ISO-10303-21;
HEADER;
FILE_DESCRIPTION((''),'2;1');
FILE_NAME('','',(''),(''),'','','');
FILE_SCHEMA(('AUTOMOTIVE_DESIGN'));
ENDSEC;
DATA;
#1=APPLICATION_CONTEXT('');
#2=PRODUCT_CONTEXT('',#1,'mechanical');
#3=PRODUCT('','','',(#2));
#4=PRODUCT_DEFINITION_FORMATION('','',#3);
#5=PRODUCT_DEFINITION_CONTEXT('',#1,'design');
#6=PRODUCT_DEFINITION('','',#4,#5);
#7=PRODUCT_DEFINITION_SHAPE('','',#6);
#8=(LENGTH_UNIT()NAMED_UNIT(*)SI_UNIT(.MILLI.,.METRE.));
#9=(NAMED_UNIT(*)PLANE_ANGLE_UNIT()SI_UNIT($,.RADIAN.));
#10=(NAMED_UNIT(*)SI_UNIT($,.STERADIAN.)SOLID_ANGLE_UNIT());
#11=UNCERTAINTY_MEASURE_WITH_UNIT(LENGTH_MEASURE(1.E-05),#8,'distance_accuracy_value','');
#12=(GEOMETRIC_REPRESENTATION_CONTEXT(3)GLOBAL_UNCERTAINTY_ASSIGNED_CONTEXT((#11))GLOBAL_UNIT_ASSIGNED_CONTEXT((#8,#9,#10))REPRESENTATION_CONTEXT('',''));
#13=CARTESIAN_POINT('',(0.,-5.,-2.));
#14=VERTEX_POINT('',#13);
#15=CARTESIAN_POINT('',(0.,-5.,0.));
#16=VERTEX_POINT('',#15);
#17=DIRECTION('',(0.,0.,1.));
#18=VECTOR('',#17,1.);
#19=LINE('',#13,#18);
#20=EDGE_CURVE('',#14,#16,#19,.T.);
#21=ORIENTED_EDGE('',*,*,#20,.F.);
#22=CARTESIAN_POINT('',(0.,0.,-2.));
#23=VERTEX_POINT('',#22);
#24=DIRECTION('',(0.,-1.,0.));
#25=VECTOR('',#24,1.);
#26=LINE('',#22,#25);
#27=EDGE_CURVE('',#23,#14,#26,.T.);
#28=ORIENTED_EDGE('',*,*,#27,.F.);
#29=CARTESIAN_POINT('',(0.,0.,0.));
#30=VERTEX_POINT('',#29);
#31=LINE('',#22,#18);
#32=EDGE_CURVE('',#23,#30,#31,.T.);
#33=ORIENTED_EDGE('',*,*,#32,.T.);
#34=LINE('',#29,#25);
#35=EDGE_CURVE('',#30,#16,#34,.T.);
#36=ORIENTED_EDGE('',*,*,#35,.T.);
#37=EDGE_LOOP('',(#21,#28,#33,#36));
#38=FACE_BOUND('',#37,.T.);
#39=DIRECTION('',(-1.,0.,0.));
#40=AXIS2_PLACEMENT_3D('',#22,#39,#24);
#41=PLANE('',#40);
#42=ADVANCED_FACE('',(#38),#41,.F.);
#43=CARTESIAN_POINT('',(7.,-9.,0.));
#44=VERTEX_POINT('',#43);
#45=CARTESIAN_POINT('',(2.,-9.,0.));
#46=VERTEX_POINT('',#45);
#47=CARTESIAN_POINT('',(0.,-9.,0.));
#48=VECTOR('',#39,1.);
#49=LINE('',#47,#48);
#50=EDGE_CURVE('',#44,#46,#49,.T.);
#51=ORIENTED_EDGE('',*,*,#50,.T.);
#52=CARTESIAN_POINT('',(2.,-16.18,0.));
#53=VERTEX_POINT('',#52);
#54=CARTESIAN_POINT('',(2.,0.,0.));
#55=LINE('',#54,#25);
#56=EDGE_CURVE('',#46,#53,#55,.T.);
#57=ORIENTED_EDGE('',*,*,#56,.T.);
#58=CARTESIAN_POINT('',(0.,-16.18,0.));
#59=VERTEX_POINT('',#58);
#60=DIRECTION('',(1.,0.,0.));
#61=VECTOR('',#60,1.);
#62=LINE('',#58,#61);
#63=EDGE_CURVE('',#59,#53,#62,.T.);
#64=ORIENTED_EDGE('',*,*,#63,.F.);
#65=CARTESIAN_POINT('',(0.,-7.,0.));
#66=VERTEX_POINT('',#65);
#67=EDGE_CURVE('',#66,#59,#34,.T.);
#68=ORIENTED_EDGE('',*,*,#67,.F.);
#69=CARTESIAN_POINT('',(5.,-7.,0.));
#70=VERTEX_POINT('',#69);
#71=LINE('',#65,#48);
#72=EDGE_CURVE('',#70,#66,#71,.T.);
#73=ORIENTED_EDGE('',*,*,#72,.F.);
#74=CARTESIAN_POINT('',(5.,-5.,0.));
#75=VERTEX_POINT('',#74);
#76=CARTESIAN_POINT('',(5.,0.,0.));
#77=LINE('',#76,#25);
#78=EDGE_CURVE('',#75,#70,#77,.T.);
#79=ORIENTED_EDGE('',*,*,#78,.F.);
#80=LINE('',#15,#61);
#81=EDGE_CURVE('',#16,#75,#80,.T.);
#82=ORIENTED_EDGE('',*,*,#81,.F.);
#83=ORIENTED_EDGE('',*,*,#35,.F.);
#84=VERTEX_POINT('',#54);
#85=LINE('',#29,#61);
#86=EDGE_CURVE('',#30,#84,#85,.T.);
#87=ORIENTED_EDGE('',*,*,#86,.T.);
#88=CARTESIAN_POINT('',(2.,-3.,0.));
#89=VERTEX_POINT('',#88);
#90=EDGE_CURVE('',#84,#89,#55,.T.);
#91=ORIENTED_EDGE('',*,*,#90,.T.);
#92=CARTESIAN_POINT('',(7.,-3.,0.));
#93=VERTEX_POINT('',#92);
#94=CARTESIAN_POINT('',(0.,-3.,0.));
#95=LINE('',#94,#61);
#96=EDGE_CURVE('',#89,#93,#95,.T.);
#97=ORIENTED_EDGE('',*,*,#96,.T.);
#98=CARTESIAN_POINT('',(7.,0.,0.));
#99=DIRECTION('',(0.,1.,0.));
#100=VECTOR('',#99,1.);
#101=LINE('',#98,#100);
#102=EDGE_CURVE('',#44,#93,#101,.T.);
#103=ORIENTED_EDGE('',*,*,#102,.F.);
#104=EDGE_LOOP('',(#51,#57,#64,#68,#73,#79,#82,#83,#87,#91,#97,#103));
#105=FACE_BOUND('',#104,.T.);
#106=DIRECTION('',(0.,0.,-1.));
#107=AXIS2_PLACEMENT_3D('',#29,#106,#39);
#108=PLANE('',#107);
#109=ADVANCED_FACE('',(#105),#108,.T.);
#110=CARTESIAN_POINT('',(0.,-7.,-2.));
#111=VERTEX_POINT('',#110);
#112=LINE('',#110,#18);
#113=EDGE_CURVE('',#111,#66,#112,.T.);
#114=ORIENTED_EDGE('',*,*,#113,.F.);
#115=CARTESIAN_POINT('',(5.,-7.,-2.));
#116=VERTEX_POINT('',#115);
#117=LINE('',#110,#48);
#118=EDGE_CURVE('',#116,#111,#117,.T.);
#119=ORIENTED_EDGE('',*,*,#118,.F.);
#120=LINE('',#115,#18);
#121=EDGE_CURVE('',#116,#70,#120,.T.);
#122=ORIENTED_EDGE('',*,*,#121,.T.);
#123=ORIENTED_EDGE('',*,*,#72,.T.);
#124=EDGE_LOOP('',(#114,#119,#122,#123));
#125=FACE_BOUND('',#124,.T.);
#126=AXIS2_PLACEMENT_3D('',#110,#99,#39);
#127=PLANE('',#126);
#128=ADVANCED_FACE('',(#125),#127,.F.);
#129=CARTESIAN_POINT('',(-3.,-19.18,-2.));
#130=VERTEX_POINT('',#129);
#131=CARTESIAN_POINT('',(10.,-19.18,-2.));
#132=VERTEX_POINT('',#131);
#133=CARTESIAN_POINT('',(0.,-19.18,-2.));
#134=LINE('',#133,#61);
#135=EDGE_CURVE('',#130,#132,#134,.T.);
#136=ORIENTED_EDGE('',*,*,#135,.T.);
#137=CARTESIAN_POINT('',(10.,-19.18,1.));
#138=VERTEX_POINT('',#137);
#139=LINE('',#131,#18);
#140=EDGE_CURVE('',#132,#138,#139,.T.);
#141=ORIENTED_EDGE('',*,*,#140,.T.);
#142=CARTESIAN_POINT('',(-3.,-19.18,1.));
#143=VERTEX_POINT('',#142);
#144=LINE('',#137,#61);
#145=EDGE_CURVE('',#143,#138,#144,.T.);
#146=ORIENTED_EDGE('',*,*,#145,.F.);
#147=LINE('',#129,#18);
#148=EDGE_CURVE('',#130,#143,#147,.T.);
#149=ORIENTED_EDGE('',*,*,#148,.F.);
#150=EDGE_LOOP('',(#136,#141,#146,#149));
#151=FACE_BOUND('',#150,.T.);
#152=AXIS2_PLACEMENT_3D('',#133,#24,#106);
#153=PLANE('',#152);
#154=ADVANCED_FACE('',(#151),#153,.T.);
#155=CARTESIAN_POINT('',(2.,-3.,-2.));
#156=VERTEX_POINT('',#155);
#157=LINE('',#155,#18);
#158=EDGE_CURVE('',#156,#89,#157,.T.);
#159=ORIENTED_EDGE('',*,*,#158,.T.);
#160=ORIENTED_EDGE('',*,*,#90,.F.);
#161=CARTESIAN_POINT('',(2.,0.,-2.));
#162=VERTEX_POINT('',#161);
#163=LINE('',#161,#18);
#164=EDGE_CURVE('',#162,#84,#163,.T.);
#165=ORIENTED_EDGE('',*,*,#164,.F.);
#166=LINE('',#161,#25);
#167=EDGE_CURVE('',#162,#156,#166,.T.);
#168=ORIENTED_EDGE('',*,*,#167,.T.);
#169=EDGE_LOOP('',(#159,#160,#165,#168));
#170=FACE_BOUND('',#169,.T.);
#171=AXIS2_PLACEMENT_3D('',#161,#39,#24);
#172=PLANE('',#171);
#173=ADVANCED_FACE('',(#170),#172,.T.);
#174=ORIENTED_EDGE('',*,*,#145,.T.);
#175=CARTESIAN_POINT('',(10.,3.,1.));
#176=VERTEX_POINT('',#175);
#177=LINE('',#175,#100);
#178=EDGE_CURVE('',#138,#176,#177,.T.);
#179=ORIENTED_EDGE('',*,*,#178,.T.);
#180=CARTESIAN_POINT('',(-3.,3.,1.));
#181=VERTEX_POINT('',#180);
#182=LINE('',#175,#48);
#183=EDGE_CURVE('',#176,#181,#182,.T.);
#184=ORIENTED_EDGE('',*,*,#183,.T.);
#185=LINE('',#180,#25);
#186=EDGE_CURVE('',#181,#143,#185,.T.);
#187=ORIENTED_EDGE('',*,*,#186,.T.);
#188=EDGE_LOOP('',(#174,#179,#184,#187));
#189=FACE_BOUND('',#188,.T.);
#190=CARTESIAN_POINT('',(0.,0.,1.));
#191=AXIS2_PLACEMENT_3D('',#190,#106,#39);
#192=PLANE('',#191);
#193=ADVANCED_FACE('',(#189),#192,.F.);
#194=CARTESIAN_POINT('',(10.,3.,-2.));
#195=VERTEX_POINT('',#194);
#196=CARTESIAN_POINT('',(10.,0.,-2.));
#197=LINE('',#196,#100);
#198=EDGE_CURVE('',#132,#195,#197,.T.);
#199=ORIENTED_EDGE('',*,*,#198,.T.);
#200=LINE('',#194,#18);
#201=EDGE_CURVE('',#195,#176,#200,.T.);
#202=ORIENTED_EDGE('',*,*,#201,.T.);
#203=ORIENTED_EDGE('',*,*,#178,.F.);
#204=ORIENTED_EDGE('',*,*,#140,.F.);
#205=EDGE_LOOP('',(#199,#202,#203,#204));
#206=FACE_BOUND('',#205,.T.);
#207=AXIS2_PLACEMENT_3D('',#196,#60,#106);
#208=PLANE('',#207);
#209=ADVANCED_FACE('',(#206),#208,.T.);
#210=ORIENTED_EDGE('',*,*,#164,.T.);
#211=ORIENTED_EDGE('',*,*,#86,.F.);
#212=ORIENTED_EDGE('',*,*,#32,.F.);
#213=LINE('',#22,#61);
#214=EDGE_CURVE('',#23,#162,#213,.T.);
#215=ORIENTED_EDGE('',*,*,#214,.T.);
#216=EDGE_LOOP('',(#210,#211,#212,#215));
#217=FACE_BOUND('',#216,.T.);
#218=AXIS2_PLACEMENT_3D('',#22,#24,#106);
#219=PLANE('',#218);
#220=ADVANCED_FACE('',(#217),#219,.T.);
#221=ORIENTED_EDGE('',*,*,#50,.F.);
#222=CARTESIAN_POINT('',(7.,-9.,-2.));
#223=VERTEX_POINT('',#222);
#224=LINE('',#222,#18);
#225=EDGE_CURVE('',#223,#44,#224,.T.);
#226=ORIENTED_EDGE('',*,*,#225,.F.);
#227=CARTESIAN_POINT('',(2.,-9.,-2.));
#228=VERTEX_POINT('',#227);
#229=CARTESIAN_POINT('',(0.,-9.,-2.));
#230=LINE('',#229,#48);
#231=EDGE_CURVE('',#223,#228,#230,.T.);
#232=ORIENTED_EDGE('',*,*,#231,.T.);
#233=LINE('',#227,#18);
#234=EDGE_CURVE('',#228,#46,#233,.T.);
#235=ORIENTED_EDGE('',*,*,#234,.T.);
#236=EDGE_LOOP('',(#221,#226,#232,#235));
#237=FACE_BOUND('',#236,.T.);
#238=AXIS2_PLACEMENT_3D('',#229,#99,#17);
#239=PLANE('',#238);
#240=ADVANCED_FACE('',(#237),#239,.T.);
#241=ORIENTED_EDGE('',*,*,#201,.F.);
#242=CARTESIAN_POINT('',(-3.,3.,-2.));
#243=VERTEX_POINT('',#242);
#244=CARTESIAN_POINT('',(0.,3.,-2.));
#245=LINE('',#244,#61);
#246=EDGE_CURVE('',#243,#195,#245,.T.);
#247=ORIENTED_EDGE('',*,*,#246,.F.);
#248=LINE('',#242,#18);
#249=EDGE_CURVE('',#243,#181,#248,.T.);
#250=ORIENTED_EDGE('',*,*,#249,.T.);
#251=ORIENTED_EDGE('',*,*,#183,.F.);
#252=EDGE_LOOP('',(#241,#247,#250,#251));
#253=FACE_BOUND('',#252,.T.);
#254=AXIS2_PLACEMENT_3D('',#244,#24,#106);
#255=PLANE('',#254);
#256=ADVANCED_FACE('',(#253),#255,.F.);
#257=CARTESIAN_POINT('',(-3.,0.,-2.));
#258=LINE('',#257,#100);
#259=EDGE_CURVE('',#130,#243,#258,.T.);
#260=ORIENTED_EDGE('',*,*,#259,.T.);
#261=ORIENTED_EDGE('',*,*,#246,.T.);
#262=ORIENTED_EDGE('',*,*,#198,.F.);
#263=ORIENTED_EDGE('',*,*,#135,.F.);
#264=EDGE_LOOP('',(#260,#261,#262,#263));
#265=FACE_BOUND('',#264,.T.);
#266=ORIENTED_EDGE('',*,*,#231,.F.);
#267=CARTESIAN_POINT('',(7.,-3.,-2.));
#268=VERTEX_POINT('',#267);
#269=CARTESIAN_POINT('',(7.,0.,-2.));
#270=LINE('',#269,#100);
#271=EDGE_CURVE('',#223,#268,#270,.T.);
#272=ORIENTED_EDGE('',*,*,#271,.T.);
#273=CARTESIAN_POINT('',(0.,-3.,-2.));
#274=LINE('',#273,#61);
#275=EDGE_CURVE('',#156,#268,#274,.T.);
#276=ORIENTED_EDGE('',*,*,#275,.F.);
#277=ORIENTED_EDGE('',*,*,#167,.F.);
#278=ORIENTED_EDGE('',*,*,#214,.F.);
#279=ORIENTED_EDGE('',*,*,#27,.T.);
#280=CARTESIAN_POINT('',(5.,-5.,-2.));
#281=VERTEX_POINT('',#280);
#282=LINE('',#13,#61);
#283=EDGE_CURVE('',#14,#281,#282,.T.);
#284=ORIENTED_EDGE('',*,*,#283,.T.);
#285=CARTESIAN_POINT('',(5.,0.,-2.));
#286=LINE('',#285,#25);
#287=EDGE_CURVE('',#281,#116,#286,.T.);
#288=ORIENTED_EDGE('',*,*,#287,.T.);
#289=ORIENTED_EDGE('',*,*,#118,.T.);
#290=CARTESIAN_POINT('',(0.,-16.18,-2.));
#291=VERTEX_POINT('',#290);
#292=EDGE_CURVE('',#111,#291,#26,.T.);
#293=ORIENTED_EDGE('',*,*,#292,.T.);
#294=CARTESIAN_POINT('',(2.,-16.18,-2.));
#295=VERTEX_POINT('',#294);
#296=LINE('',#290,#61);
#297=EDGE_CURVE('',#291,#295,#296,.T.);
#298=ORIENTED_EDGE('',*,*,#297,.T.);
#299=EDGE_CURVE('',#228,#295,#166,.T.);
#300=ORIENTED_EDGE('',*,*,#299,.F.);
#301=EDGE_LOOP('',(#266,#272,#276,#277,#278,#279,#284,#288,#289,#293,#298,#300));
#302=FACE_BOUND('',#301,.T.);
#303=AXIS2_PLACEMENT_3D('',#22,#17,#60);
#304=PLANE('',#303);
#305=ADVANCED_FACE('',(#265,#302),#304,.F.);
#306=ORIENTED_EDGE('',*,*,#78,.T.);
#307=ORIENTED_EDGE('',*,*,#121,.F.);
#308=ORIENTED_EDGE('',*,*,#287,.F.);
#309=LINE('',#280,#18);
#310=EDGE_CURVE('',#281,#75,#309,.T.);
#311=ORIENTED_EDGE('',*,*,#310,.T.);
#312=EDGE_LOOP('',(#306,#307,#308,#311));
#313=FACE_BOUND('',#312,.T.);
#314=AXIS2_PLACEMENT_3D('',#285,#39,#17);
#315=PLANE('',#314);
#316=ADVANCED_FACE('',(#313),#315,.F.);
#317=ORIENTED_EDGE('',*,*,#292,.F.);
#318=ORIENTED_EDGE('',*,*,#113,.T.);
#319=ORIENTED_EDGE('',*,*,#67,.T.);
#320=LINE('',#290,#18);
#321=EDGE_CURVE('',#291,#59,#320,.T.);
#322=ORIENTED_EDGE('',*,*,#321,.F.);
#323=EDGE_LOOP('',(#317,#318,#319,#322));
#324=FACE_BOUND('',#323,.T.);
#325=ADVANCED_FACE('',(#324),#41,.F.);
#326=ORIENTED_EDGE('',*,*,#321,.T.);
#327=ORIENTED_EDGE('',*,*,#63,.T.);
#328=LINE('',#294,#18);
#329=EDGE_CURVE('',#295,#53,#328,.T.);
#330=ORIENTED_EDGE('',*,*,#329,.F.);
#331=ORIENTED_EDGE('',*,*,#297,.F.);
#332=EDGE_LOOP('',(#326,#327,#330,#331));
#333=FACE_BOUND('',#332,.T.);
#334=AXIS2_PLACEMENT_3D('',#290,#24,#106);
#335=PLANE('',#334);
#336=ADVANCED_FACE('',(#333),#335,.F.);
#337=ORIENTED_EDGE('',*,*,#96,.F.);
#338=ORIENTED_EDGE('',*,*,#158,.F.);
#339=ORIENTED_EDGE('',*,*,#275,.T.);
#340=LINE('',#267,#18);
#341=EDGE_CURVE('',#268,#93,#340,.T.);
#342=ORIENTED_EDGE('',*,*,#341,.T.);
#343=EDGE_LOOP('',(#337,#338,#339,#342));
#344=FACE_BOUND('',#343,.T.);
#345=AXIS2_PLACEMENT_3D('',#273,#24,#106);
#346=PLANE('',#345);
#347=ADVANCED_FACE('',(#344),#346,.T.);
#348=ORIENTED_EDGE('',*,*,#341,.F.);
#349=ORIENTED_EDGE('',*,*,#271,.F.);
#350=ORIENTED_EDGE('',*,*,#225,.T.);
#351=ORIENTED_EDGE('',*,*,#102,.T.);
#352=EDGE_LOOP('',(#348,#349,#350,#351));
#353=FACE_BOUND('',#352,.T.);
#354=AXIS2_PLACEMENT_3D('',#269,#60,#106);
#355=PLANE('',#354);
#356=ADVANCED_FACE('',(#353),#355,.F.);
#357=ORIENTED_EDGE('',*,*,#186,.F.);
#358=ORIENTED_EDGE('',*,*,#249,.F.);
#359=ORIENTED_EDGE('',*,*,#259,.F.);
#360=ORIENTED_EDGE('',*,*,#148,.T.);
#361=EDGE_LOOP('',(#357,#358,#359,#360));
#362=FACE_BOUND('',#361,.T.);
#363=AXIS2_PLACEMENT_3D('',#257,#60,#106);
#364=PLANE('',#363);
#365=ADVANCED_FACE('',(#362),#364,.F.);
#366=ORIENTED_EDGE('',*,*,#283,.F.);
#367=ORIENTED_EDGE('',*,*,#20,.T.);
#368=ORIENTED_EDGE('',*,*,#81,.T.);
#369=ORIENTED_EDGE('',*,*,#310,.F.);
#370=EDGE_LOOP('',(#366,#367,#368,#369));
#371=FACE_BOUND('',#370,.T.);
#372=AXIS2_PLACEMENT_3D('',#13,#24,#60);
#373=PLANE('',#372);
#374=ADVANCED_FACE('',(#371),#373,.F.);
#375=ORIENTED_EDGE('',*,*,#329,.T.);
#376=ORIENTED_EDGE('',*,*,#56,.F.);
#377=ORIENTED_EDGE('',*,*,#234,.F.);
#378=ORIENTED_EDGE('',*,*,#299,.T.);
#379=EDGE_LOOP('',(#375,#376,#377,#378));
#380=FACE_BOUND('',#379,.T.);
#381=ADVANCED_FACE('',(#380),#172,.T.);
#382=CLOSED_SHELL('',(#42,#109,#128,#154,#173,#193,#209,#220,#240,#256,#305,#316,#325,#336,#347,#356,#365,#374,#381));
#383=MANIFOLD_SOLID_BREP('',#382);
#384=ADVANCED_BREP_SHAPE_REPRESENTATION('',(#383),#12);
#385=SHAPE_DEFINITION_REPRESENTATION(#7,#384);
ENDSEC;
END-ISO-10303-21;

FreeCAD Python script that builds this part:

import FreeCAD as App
import Part
import Sketcher

V = App.Vector


def add_polygon(sketch, points):
    """Adds a closed chain of lines whose ends are joined by coincident constraints."""
    first, n = sketch.GeometryCount, len(points)
    for a, b in zip(points, points[1:] + points[:1]):
        sketch.addGeometry(Part.LineSegment(App.Vector(*a, 0), App.Vector(*b, 0)), False)
    for i in range(n):
        sketch.addConstraint(Sketcher.Constraint("Coincident", first + i, 2, first + (i + 1) % n, 1))

doc = App.newDocument("Part")
params = doc.addObject("Spreadsheet::Sheet", "Params")
for row, (alias, value) in enumerate([
    ("sketch1_width", "13 mm"),
    ("sketch1_width2", "5 mm"),
    ("sketch1_width3", "2 mm"),
    ("sketch1_height", "3 mm"),
    ("sketch1_height2", "6 mm"),
    ("pad1_length", "2 mm"),
    ("sketch2_width", "13 mm"),
    ("sketch2_height", "22.18 mm"),
    ("pad2_length", "1 mm"),
], start=1):
    params.set(f"A{row}", alias)
    params.set(f"B{row}", "=" + value)
    params.setAlias(f"B{row}", alias)

body = doc.addObject("PartDesign::Body", "Body")

sketch1 = body.newObject("Sketcher::SketchObject", "Sketch")
sketch1.AttachmentSupport = (doc.getObject("XY_Plane"), [""])
sketch1.MapMode = "FlatFace"
add_polygon(sketch1, [(-3, 3), (-3, -19.2), (10, -19.2), (10, 3)])
add_polygon(sketch1, [(5, -5), (0, -5), (0, 0), (2, 0), (2, -3), (7, -3), (7, -9), (2, -9), (2, -16.2), (0, -16.2), (0, -7), (5, -7)])
sketch1.addConstraint(Sketcher.Constraint("Vertical", 0))
sketch1.addConstraint(Sketcher.Constraint("Horizontal", 1))
sketch1.addConstraint(Sketcher.Constraint("Vertical", 2))
sketch1.addConstraint(Sketcher.Constraint("Horizontal", 3))
sketch1.addConstraint(Sketcher.Constraint("Horizontal", 4))
sketch1.addConstraint(Sketcher.Constraint("Vertical", 5))
sketch1.addConstraint(Sketcher.Constraint("Horizontal", 6))
sketch1.addConstraint(Sketcher.Constraint("Vertical", 7))
sketch1.addConstraint(Sketcher.Constraint("Horizontal", 8))
sketch1.addConstraint(Sketcher.Constraint("Vertical", 9))
sketch1.addConstraint(Sketcher.Constraint("Horizontal", 10))
sketch1.addConstraint(Sketcher.Constraint("Vertical", 11))
sketch1.addConstraint(Sketcher.Constraint("Horizontal", 12))
sketch1.addConstraint(Sketcher.Constraint("Vertical", 13))
sketch1.addConstraint(Sketcher.Constraint("Horizontal", 14))
sketch1.addConstraint(Sketcher.Constraint("Vertical", 15))
sketch1.addConstraint(Sketcher.Constraint("Coincident", 5, 2, -1, 1))
sketch1.addConstraint(Sketcher.Constraint("PointOnObject", 12, 2, -2))
sketch1.addConstraint(Sketcher.Constraint("Vertical", 7, 2, 10, 2))
sketch1.addConstraint(Sketcher.Constraint("Equal", 4, 8))
sketch1.addConstraint(Sketcher.Constraint("Equal", 14, 5))
sketch1.addConstraint(Sketcher.Constraint("Equal", 12, 15))
sketch1.addConstraint(Sketcher.Constraint("DistanceX", 1, 1, 1, 2, 13.0))
sketch1.addConstraint(Sketcher.Constraint("DistanceX", 4, 2, 4, 1, 5.0))
sketch1.addConstraint(Sketcher.Constraint("DistanceX", 6, 1, 6, 2, 2.0))
sketch1.addConstraint(Sketcher.Constraint("DistanceY", 7, 2, 7, 1, 3.0))
sketch1.addConstraint(Sketcher.Constraint("DistanceY", 9, 2, 9, 1, 6.0))
sketch1.addConstraint(Sketcher.Constraint("DistanceX", 0, 2, -1, 1, 3.0))
sketch1.addConstraint(Sketcher.Constraint("DistanceY", -1, 1, 2, 2, 3.0))
sketch1.addConstraint(Sketcher.Constraint("DistanceY", 0, 2, 11, 2, 3.0))
sketch1.addConstraint(Sketcher.Constraint("DistanceY", 0, 2, 0, 1, 22.18))
sketch1.setExpression("Constraints[38]", "Params.sketch1_width")
sketch1.setExpression("Constraints[39]", "Params.sketch1_width2")
sketch1.setExpression("Constraints[40]", "Params.sketch1_width3")
sketch1.setExpression("Constraints[41]", "Params.sketch1_height")
sketch1.setExpression("Constraints[42]", "Params.sketch1_height2")
pad1 = body.newObject("PartDesign::Pad", "Pad")
pad1.Profile = sketch1
pad1.setExpression("Length", "Params.pad1_length")
pad1.Reversed = True

sketch2 = body.newObject("Sketcher::SketchObject", "Sketch001")
sketch2.AttachmentSupport = (doc.getObject("XY_Plane"), [""])
sketch2.MapMode = "FlatFace"
add_polygon(sketch2, [(-3, 3), (-3, -19), (10, -19), (10, 3)])
sketch2.addConstraint(Sketcher.Constraint("Vertical", 0))
sketch2.addConstraint(Sketcher.Constraint("Horizontal", 1))
sketch2.addConstraint(Sketcher.Constraint("Vertical", 2))
sketch2.addConstraint(Sketcher.Constraint("Horizontal", 3))
sketch2.addConstraint(Sketcher.Constraint("DistanceX", 1, 1, 1, 2, 13.0))
sketch2.addConstraint(Sketcher.Constraint("DistanceX", 0, 2, -1, 1, 3.0))
sketch2.addConstraint(Sketcher.Constraint("DistanceY", -1, 1, 2, 2, 3.0))
sketch2.addConstraint(Sketcher.Constraint("DistanceY", 0, 2, 0, 1, 22.18))
sketch2.setExpression("Constraints[8]", "Params.sketch2_width")
sketch2.setExpression("Constraints[11]", "Params.sketch2_height")
pad2 = body.newObject("PartDesign::Pad", "Pad001")
pad2.Profile = sketch2
pad2.setExpression("Length", "Params.pad2_length")

doc.recompute()
